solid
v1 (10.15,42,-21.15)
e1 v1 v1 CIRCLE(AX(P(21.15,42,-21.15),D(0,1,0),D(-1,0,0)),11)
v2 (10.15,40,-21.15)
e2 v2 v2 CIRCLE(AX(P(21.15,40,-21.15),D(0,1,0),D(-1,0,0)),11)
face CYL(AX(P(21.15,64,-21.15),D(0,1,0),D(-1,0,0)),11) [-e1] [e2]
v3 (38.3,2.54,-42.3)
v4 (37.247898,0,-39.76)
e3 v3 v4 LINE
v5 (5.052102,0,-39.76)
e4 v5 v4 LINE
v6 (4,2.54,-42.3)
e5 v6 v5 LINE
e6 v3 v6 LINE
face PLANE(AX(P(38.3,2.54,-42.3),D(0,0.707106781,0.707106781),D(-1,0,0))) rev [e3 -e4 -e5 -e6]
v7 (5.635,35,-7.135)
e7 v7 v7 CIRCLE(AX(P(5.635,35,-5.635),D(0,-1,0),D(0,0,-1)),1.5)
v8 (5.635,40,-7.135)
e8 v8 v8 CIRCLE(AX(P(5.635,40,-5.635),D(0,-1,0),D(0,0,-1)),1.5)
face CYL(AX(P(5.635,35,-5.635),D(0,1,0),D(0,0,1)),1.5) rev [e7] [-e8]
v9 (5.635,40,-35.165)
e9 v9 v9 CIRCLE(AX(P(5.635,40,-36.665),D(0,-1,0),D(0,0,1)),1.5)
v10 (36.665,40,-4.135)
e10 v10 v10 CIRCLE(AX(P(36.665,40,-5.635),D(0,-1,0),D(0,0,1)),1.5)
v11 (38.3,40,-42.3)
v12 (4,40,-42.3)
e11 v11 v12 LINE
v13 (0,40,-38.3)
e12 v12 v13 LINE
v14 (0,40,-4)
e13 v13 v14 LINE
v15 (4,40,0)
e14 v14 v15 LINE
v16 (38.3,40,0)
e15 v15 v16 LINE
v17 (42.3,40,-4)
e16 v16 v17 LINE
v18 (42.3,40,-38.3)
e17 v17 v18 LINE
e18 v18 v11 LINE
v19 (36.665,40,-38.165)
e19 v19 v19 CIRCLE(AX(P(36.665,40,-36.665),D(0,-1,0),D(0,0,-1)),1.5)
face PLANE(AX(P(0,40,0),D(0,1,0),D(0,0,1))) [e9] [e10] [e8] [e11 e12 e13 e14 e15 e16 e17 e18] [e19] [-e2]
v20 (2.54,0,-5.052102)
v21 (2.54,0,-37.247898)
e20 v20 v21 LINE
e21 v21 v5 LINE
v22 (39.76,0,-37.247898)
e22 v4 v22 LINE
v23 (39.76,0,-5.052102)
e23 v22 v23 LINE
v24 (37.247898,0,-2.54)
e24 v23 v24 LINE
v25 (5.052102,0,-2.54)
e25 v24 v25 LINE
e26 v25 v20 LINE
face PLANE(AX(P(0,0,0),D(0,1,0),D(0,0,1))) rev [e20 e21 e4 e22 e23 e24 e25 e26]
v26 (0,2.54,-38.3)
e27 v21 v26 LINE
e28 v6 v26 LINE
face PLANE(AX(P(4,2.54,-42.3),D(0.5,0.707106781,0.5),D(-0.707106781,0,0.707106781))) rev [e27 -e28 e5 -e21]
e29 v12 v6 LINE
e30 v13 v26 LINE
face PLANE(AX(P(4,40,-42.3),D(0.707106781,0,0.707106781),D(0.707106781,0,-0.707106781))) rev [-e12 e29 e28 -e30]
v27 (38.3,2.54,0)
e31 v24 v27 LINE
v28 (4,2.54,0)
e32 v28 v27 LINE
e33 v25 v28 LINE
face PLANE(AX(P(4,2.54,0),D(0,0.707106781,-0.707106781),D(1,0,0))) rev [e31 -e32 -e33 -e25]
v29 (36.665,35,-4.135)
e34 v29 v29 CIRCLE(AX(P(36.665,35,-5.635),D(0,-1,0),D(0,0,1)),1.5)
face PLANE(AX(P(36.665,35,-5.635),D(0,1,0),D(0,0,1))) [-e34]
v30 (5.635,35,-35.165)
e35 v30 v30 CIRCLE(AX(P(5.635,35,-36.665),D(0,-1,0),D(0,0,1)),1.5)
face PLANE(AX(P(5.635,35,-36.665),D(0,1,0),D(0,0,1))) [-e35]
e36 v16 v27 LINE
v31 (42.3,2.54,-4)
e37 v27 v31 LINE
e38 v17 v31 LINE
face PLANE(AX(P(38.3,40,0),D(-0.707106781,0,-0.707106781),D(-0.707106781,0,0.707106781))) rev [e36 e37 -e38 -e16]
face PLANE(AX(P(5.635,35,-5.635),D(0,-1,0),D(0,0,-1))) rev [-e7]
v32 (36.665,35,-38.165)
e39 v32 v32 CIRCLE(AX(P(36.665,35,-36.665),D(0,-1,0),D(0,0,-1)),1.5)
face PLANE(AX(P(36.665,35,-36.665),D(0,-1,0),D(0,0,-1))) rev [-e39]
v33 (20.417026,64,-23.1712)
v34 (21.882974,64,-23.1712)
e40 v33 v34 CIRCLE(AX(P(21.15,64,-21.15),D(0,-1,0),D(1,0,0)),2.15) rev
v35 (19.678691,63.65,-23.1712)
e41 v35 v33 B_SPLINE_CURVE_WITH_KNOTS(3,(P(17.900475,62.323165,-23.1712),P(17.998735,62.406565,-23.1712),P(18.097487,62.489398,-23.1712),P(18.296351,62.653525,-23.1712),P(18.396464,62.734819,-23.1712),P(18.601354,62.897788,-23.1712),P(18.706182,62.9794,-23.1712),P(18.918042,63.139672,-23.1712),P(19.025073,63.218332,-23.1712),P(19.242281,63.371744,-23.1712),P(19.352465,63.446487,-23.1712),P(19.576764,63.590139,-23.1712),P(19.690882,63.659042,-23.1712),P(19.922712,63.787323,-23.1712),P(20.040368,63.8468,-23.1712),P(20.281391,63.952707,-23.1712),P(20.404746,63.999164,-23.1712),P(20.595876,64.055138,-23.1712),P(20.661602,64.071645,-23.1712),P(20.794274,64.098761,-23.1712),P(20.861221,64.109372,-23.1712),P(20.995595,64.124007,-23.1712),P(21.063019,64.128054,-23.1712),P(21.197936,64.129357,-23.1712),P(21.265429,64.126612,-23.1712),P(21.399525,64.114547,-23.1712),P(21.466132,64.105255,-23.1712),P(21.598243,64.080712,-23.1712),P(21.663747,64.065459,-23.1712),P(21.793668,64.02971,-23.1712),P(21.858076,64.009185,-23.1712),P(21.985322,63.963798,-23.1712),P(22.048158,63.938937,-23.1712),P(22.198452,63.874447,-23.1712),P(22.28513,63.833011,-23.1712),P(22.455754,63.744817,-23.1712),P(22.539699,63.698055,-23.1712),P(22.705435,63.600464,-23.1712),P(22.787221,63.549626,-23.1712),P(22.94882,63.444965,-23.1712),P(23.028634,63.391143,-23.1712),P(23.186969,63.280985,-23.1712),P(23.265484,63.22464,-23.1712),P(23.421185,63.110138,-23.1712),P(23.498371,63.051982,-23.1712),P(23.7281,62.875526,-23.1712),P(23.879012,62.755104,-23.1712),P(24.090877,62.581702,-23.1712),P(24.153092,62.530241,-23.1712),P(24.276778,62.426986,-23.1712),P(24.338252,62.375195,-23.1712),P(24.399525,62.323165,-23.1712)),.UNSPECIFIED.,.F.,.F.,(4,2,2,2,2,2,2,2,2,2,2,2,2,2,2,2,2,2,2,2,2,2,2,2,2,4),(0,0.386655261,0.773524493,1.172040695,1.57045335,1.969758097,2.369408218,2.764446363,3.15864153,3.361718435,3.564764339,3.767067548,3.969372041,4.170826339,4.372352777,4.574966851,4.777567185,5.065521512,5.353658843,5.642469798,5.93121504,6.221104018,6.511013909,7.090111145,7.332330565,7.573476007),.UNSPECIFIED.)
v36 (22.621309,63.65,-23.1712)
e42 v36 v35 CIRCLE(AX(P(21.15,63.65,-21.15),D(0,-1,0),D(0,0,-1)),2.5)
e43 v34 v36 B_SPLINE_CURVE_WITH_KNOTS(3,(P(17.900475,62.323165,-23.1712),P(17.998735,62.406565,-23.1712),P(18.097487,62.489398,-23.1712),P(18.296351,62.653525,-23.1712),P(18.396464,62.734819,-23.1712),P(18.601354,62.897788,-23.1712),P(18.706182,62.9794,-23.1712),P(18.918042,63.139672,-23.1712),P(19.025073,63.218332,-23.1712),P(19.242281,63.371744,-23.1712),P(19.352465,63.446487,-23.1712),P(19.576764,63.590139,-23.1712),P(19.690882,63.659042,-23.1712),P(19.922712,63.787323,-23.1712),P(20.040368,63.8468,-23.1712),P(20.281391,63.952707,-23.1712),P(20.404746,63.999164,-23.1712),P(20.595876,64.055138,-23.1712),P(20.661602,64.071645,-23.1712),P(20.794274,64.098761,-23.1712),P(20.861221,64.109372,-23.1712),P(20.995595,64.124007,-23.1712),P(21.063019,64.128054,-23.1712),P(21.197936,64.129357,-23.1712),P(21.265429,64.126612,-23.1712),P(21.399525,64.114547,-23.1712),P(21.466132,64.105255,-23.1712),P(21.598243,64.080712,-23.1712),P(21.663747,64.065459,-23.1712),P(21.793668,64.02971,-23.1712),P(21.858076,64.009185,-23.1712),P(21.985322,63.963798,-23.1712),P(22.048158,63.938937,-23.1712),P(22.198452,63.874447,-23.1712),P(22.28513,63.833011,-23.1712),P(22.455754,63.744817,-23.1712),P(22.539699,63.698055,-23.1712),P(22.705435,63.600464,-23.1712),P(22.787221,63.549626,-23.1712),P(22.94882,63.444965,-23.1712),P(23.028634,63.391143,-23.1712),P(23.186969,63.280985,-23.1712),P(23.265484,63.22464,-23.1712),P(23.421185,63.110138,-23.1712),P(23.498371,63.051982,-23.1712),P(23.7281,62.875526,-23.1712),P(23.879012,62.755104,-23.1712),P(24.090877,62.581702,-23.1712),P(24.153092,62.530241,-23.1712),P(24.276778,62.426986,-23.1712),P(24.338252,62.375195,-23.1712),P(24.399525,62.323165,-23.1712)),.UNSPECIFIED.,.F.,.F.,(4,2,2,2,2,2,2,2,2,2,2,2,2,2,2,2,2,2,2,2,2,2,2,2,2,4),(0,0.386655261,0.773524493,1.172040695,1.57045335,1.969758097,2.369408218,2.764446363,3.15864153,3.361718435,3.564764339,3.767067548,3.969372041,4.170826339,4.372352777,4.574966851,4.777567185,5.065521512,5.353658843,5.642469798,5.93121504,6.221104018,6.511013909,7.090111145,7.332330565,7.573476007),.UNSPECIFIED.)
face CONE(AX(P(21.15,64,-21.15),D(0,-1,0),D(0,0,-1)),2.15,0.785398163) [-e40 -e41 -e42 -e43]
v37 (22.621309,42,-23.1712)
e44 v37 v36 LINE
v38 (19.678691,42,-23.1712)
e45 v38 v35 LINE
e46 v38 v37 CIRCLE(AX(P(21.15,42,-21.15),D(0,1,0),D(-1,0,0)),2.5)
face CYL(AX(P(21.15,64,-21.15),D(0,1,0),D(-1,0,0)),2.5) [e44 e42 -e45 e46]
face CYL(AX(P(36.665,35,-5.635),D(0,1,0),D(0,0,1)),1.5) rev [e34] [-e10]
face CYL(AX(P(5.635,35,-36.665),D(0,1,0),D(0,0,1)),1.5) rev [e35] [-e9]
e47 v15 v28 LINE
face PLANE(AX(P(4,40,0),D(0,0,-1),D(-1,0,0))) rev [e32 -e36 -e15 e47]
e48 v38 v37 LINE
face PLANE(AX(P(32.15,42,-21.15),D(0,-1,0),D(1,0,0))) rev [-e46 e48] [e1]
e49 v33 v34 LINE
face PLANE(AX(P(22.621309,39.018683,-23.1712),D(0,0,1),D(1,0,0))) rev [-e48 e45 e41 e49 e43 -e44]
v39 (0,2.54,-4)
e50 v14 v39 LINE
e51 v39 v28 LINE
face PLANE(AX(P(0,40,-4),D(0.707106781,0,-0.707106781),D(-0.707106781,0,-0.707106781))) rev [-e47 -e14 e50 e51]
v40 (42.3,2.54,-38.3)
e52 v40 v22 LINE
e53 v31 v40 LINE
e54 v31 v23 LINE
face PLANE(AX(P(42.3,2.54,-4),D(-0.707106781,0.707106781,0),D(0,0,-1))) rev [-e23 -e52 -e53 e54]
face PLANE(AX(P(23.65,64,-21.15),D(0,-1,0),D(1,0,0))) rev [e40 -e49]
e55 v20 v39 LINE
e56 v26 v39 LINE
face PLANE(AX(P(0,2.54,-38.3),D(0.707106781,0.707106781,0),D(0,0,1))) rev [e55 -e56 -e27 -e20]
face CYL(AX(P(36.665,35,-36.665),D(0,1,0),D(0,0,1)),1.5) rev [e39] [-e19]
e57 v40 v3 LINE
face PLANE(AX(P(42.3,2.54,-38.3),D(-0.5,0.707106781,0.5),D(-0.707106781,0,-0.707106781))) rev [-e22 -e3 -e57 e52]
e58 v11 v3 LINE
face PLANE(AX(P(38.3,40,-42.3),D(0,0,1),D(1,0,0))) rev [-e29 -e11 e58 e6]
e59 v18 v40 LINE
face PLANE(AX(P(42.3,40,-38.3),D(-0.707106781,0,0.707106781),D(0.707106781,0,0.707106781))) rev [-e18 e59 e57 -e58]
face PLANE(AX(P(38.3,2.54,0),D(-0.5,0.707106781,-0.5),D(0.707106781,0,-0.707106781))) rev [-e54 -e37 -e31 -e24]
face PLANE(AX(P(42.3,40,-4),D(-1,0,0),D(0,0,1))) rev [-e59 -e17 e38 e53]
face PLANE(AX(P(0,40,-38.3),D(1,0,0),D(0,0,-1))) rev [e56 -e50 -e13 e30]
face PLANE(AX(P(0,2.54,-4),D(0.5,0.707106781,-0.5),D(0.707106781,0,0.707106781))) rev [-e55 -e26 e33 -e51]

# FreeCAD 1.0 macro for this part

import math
import FreeCAD as App
import Part
import Sketcher
Q = App.Units.Quantity


def edges_at(feature, points):
    """Names of the edges that pass closest to the given points."""
    edges = feature.Shape.Edges
    near = lambda p: min(range(len(edges)), key=lambda i: edges[i].distToShape(Part.Vertex(*p))[0])
    return sorted({f"Edge{near(p) + 1}" for p in points})

doc = App.newDocument("Part")
body = doc.addObject("PartDesign::Body", "Body")

# Sketch on XZ plane
sketch1 = doc.addObject("Sketcher::SketchObject", "Sketch")
body.addObject(sketch1)
sketch1.AttachmentSupport = (doc.XZ_Plane, [""])
sketch1.MapMode = "FlatFace"
sketch1.addGeometry([
    Part.LineSegment(App.Vector(4, -42, 0), App.Vector(0, -38, 0)),  # 0
    Part.LineSegment(App.Vector(0, -38, 0), App.Vector(0, -4, 0)),  # 1
    Part.LineSegment(App.Vector(0, -4, 0), App.Vector(4, 0, 0)),  # 2
    Part.LineSegment(App.Vector(4, 0, 0), App.Vector(38, 0, 0)),  # 3
    Part.LineSegment(App.Vector(38, 0, 0), App.Vector(42, -4, 0)),  # 4
    Part.LineSegment(App.Vector(42, -4, 0), App.Vector(42, -38, 0)),  # 5
    Part.LineSegment(App.Vector(42, -38, 0), App.Vector(38, -42, 0)),  # 6
    Part.LineSegment(App.Vector(38, -42, 0), App.Vector(4, -42, 0)),  # 7
], False)
sketch1.addConstraint([
    Sketcher.Constraint("Coincident", 0, 2, 1, 1),
    Sketcher.Constraint("Coincident", 1, 2, 2, 1),
    Sketcher.Constraint("Coincident", 2, 2, 3, 1),
    Sketcher.Constraint("Coincident", 3, 2, 4, 1),
    Sketcher.Constraint("Coincident", 4, 2, 5, 1),
    Sketcher.Constraint("Coincident", 5, 2, 6, 1),
    Sketcher.Constraint("Coincident", 6, 2, 7, 1),
    Sketcher.Constraint("Coincident", 7, 2, 0, 1),
    Sketcher.Constraint("Vertical", 1),
    Sketcher.Constraint("Horizontal", 3),
    Sketcher.Constraint("Vertical", 5),
    Sketcher.Constraint("Horizontal", 7),
    Sketcher.Constraint("PointOnObject", 0, 2, -2),
    Sketcher.Constraint("PointOnObject", 2, 2, -1),
    Sketcher.Constraint("Perpendicular", 0, 2),
    Sketcher.Constraint("Perpendicular", 2, 4),
    Sketcher.Constraint("Perpendicular", 4, 6),
    Sketcher.Constraint("Horizontal", 1, 2, 4, 2),
    Sketcher.Constraint("Horizontal", 0, 2, 5, 2),
    Sketcher.Constraint("Vertical", 3, 2, 6, 2),
    Sketcher.Constraint("Vertical", 2, 2, 7, 2),
    Sketcher.Constraint("Equal", 7, 1),
    Sketcher.Constraint("DistanceX", 3, 1, 3, 2, Q("34.3 mm")),
    Sketcher.Constraint("DistanceY", 1, 2, -1, 1, Q("4 mm")),
])
pad1 = doc.addObject("PartDesign::Pad", "Pad")
body.addObject(pad1)
pad1.Profile = sketch1
pad1.Length = 40
pad1.Reversed = True

# Sketch on XZ plane
sketch2 = doc.addObject("Sketcher::SketchObject", "Sketch001")
body.addObject(sketch2)
sketch2.AttachmentSupport = (doc.XZ_Plane, [""])
sketch2.MapMode = "FlatFace"
sketch2.AttachmentOffset = App.Placement(App.Vector(0, 0, -40), App.Rotation())
sketch2.addGeometry([
    Part.Circle(App.Vector(5.6, -5.6, 0), App.Vector(0, 0, 1), 1.5),
    Part.Circle(App.Vector(36.7, -5.6, 0), App.Vector(0, 0, 1), 1.5),
    Part.Circle(App.Vector(36.7, -36.7, 0), App.Vector(0, 0, 1), 1.5),
    Part.Circle(App.Vector(5.6, -36.7, 0), App.Vector(0, 0, 1), 1.5),
], False)
sketch2.addConstraint([
    Sketcher.Constraint("Equal", 0, 1),
    Sketcher.Constraint("Equal", 1, 2),
    Sketcher.Constraint("Equal", 2, 3),
    Sketcher.Constraint("Horizontal", 0, 3, 1, 3),
    Sketcher.Constraint("Horizontal", 2, 3, 3, 3),
    Sketcher.Constraint("Vertical", 1, 3, 2, 3),
    Sketcher.Constraint("Vertical", 0, 3, 3, 3),
    Sketcher.Constraint("Diameter", 0, Q("3 mm")),
    Sketcher.Constraint("DistanceX", 0, 3, 1, 3, Q("31.03 mm")),
    Sketcher.Constraint("DistanceY", 2, 3, 1, 3, Q("31.03 mm")),
    Sketcher.Constraint("DistanceX", -1, 1, 0, 3, Q("5.635 mm")),
    Sketcher.Constraint("DistanceY", 0, 3, -1, 1, Q("5.635 mm")),
])
pocket1 = doc.addObject("PartDesign::Pocket", "Pocket")
body.addObject(pocket1)
pocket1.Profile = sketch2
pocket1.Length = 5
pocket1.Reversed = True

# Sketch on XY plane
sketch3 = doc.addObject("Sketcher::SketchObject", "Sketch002")
body.addObject(sketch3)
sketch3.AttachmentSupport = (doc.XY_Plane, [""])
sketch3.MapMode = "FlatFace"
sketch3.AttachmentOffset = App.Placement(App.Vector(0, 0, -21.15), App.Rotation())
sketch3.addGeometry([
    Part.LineSegment(App.Vector(21.1, 40, 0), App.Vector(32.1, 40, 0)),  # 0
    Part.LineSegment(App.Vector(32.1, 40, 0), App.Vector(32.1, 42, 0)),  # 1
    Part.LineSegment(App.Vector(32.1, 42, 0), App.Vector(23.6, 42, 0)),  # 2
    Part.LineSegment(App.Vector(23.6, 42, 0), App.Vector(23.6, 64, 0)),  # 3
    Part.LineSegment(App.Vector(23.6, 64, 0), App.Vector(21.1, 64, 0)),  # 4
    Part.LineSegment(App.Vector(21.1, 64, 0), App.Vector(21.1, 40, 0)),  # 5
], False)
sketch3.addGeometry(Part.LineSegment(App.Vector(21.1, 64, 0), App.Vector(21.1, 40, 0)), True)  # axis
sketch3.addConstraint([
    Sketcher.Constraint("Coincident", 0, 2, 1, 1),
    Sketcher.Constraint("Coincident", 1, 2, 2, 1),
    Sketcher.Constraint("Coincident", 2, 2, 3, 1),
    Sketcher.Constraint("Coincident", 3, 2, 4, 1),
    Sketcher.Constraint("Coincident", 4, 2, 5, 1),
    Sketcher.Constraint("Coincident", 5, 2, 0, 1),
    Sketcher.Constraint("Horizontal", 0),
    Sketcher.Constraint("Vertical", 1),
    Sketcher.Constraint("Horizontal", 2),
    Sketcher.Constraint("Vertical", 3),
    Sketcher.Constraint("Horizontal", 4),
    Sketcher.Constraint("Vertical", 5),
    Sketcher.Constraint("Vertical", 6),
    Sketcher.Constraint("Coincident", 6, 1, 4, 2),
    Sketcher.Constraint("Horizontal", 0, 2, 6, 2),
    Sketcher.Constraint("DistanceX", 0, 1, 0, 2, Q("11 mm")),
    Sketcher.Constraint("DistanceY", 1, 1, 1, 2, Q("2 mm")),
    Sketcher.Constraint("DistanceY", 3, 1, 3, 2, Q("22 mm")),
    Sketcher.Constraint("DistanceX", 2, 2, 2, 1, Q("8.5 mm")),
    Sketcher.Constraint("DistanceY", -1, 1, 0, 2, Q("40 mm")),
    Sketcher.Constraint("DistanceX", -1, 1, 0, 2, Q("32.15 mm")),
])
revolution = doc.addObject("PartDesign::Revolution", "Revolution")
body.addObject(revolution)
revolution.Profile = sketch3
revolution.ReferenceAxis = (sketch3, ["Axis0"])
revolution.Angle = 360
doc.recompute()

chamfer = doc.addObject("PartDesign::Chamfer", "Chamfer")
body.addObject(chamfer)
chamfer.Base = (revolution, edges_at(revolution, [(18.65, 64, -21.15)]))
chamfer.Size = 0.35

# Sketch on XZ plane
sketch4 = doc.addObject("Sketcher::SketchObject", "Sketch003")
body.addObject(sketch4)
sketch4.AttachmentSupport = (doc.XZ_Plane, [""])
sketch4.MapMode = "FlatFace"
sketch4.AttachmentOffset = App.Placement(App.Vector(0, 0, -64), App.Rotation())
sketch4.addGeometry([
    Part.LineSegment(App.Vector(19.7, -23.2, 0), App.Vector(22.6, -23.2, 0)),
    Part.ArcOfCircle(Part.Circle(App.Vector(21.1, -21.2, 0), App.Vector(0, 0, 1), 2.5), math.radians(-126), math.radians(-54)),
], False)
sketch4.addConstraint([
    Sketcher.Constraint("Coincident", 0, 1, 1, 1),
    Sketcher.Constraint("Coincident", 1, 2, 0, 2),
    Sketcher.Constraint("Horizontal", 0),
    Sketcher.Constraint("Radius", 1, Q("2.5 mm")),
    Sketcher.Constraint("DistanceX", -1, 1, 1, 3, Q("21.15 mm")),
    Sketcher.Constraint("DistanceY", 1, 3, -1, 1, Q("21.15 mm")),
    Sketcher.Constraint("DistanceX", 0, 1, 0, 2, Q("2.942618 mm")),
])
pocket2 = doc.addObject("PartDesign::Pocket", "Pocket001")
body.addObject(pocket2)
pocket2.Profile = sketch4
pocket2.Length = 22
pocket2.Reversed = True
doc.recompute()

chamfer2 = doc.addObject("PartDesign::Chamfer", "Chamfer001")
body.addObject(chamfer2)
chamfer2.Base = (pocket2, edges_at(pocket2, [
    (2, 0, -40.3),
    (21.15, 0, -42.3),
    (40.3, 0, -40.3),
    (42.3, 0, -21.15),
    (40.3, 0, -2),
    (21.15, 0, 0),
    (2, 0, -2),
    (0, 0, -21.15),
]))
chamfer2.Size = 2.54

doc.recompute()
